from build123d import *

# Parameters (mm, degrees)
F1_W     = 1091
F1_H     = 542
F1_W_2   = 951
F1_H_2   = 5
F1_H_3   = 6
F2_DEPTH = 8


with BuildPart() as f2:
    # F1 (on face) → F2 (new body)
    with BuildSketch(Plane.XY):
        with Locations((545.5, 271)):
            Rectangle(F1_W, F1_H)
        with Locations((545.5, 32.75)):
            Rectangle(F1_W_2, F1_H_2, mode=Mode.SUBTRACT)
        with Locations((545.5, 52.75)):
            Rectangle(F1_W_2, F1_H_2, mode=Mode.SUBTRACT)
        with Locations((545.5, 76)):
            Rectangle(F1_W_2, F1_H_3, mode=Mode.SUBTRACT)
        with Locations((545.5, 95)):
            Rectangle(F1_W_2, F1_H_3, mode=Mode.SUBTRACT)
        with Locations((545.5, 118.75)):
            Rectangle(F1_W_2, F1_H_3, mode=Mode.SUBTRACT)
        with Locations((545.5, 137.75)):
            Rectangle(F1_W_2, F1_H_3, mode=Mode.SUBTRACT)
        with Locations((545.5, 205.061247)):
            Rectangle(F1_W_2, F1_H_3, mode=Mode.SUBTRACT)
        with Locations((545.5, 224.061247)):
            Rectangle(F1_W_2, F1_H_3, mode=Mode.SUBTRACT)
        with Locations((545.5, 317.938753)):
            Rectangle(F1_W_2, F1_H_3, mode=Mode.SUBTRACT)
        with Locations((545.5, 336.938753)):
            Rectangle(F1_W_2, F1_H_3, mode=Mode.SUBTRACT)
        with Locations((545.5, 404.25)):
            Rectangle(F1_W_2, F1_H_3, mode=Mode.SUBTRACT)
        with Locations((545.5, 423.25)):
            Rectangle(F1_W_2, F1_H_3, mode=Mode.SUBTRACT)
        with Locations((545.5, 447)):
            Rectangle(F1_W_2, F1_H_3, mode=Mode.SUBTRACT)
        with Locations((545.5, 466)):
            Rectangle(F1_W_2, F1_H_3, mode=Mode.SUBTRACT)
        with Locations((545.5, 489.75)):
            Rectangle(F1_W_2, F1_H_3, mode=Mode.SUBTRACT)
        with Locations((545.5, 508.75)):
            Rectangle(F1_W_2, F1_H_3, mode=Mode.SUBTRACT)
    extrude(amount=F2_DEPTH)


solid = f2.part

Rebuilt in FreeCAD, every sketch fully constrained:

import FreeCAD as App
import Part
import Sketcher
from FreeCAD import Vector
Q = App.Units.Quantity


def add_polygon(sketch, points):
    """Adds a closed chain of lines whose ends are joined by coincident constraints."""
    first, n = sketch.GeometryCount, len(points)
    for a, b in zip(points, points[1:] + points[:1]):
        sketch.addGeometry(Part.LineSegment(App.Vector(*a, 0), App.Vector(*b, 0)), False)
    for i in range(n):
        sketch.addConstraint(Sketcher.Constraint("Coincident", first + i, 2, first + (i + 1) % n, 1))

doc = App.newDocument("Part")
body = doc.addObject("PartDesign::Body", "Body")

sketch1 = body.newObject("Sketcher::SketchObject", "Sketch")
sketch1.AttachmentSupport = (doc.getObject("XY_Plane"), [""])
sketch1.MapMode = "FlatFace"
add_polygon(sketch1, [(0, 542), (0, 0), (1091, 0), (1091, 542)])
add_polygon(sketch1, [(1021, 30), (70, 30), (70, 35), (1021, 35)])
add_polygon(sketch1, [(1021, 50), (70, 50), (70, 55), (1021, 55)])
add_polygon(sketch1, [(1021, 73), (70, 73), (70, 79), (1021, 79)])
add_polygon(sketch1, [(1021, 92), (70, 92), (70, 98), (1021, 98)])
add_polygon(sketch1, [(1021, 116), (70, 116), (70, 122), (1021, 122)])
add_polygon(sketch1, [(1021, 135), (70, 135), (70, 141), (1021, 141)])
add_polygon(sketch1, [(1021, 202), (70, 202), (70, 208), (1021, 208)])
add_polygon(sketch1, [(1021, 221), (70, 221), (70, 227), (1021, 227)])
add_polygon(sketch1, [(1021, 315), (70, 315), (70, 321), (1021, 321)])
add_polygon(sketch1, [(1021, 334), (70, 334), (70, 340), (1021, 340)])
add_polygon(sketch1, [(1021, 401), (70, 401), (70, 407), (1021, 407)])
add_polygon(sketch1, [(1021, 420), (70, 420), (70, 426), (1021, 426)])
add_polygon(sketch1, [(1021, 444), (70, 444), (70, 450), (1021, 450)])
add_polygon(sketch1, [(1021, 463), (70, 463), (70, 469), (1021, 469)])
add_polygon(sketch1, [(1021, 487), (70, 487), (70, 493), (1021, 493)])
add_polygon(sketch1, [(1021, 506), (70, 506), (70, 512), (1021, 512)])
sketch1.addConstraint(Sketcher.Constraint("Vertical", 0))
sketch1.addConstraint(Sketcher.Constraint("Horizontal", 1))
sketch1.addConstraint(Sketcher.Constraint("Vertical", 2))
sketch1.addConstraint(Sketcher.Constraint("Horizontal", 3))
sketch1.addConstraint(Sketcher.Constraint("Horizontal", 4))
sketch1.addConstraint(Sketcher.Constraint("Vertical", 5))
sketch1.addConstraint(Sketcher.Constraint("Horizontal", 6))
sketch1.addConstraint(Sketcher.Constraint("Vertical", 7))
sketch1.addConstraint(Sketcher.Constraint("Horizontal", 8))
sketch1.addConstraint(Sketcher.Constraint("Vertical", 9))
sketch1.addConstraint(Sketcher.Constraint("Horizontal", 10))
sketch1.addConstraint(Sketcher.Constraint("Vertical", 11))
sketch1.addConstraint(Sketcher.Constraint("Horizontal", 12))
sketch1.addConstraint(Sketcher.Constraint("Vertical", 13))
sketch1.addConstraint(Sketcher.Constraint("Horizontal", 14))
sketch1.addConstraint(Sketcher.Constraint("Vertical", 15))
sketch1.addConstraint(Sketcher.Constraint("Horizontal", 16))
sketch1.addConstraint(Sketcher.Constraint("Vertical", 17))
sketch1.addConstraint(Sketcher.Constraint("Horizontal", 18))
sketch1.addConstraint(Sketcher.Constraint("Vertical", 19))
sketch1.addConstraint(Sketcher.Constraint("Horizontal", 20))
sketch1.addConstraint(Sketcher.Constraint("Vertical", 21))
sketch1.addConstraint(Sketcher.Constraint("Horizontal", 22))
sketch1.addConstraint(Sketcher.Constraint("Vertical", 23))
sketch1.addConstraint(Sketcher.Constraint("Horizontal", 24))
sketch1.addConstraint(Sketcher.Constraint("Vertical", 25))
sketch1.addConstraint(Sketcher.Constraint("Horizontal", 26))
sketch1.addConstraint(Sketcher.Constraint("Vertical", 27))
sketch1.addConstraint(Sketcher.Constraint("Horizontal", 28))
sketch1.addConstraint(Sketcher.Constraint("Vertical", 29))
sketch1.addConstraint(Sketcher.Constraint("Horizontal", 30))
sketch1.addConstraint(Sketcher.Constraint("Vertical", 31))
sketch1.addConstraint(Sketcher.Constraint("Horizontal", 32))
sketch1.addConstraint(Sketcher.Constraint("Vertical", 33))
sketch1.addConstraint(Sketcher.Constraint("Horizontal", 34))
sketch1.addConstraint(Sketcher.Constraint("Vertical", 35))
sketch1.addConstraint(Sketcher.Constraint("Horizontal", 36))
sketch1.addConstraint(Sketcher.Constraint("Vertical", 37))
sketch1.addConstraint(Sketcher.Constraint("Horizontal", 38))
sketch1.addConstraint(Sketcher.Constraint("Vertical", 39))
sketch1.addConstraint(Sketcher.Constraint("Horizontal", 40))
sketch1.addConstraint(Sketcher.Constraint("Vertical", 41))
sketch1.addConstraint(Sketcher.Constraint("Horizontal", 42))
sketch1.addConstraint(Sketcher.Constraint("Vertical", 43))
sketch1.addConstraint(Sketcher.Constraint("Horizontal", 44))
sketch1.addConstraint(Sketcher.Constraint("Vertical", 45))
sketch1.addConstraint(Sketcher.Constraint("Horizontal", 46))
sketch1.addConstraint(Sketcher.Constraint("Vertical", 47))
sketch1.addConstraint(Sketcher.Constraint("Horizontal", 48))
sketch1.addConstraint(Sketcher.Constraint("Vertical", 49))
sketch1.addConstraint(Sketcher.Constraint("Horizontal", 50))
sketch1.addConstraint(Sketcher.Constraint("Vertical", 51))
sketch1.addConstraint(Sketcher.Constraint("Horizontal", 52))
sketch1.addConstraint(Sketcher.Constraint("Vertical", 53))
sketch1.addConstraint(Sketcher.Constraint("Horizontal", 54))
sketch1.addConstraint(Sketcher.Constraint("Vertical", 55))
sketch1.addConstraint(Sketcher.Constraint("Horizontal", 56))
sketch1.addConstraint(Sketcher.Constraint("Vertical", 57))
sketch1.addConstraint(Sketcher.Constraint("Horizontal", 58))
sketch1.addConstraint(Sketcher.Constraint("Vertical", 59))
sketch1.addConstraint(Sketcher.Constraint("Horizontal", 60))
sketch1.addConstraint(Sketcher.Constraint("Vertical", 61))
sketch1.addConstraint(Sketcher.Constraint("Horizontal", 62))
sketch1.addConstraint(Sketcher.Constraint("Vertical", 63))
sketch1.addConstraint(Sketcher.Constraint("Horizontal", 64))
sketch1.addConstraint(Sketcher.Constraint("Vertical", 65))
sketch1.addConstraint(Sketcher.Constraint("Horizontal", 66))
sketch1.addConstraint(Sketcher.Constraint("Vertical", 67))
sketch1.addConstraint(Sketcher.Constraint("Coincident", 0, 2, -1, 1))
sketch1.addConstraint(Sketcher.Constraint("Vertical", 5, 2, 8, 2))
sketch1.addConstraint(Sketcher.Constraint("Vertical", 7, 2, 10, 2))
sketch1.addConstraint(Sketcher.Constraint("Vertical", 9, 2, 12, 2))
sketch1.addConstraint(Sketcher.Constraint("Vertical", 11, 2, 14, 2))
sketch1.addConstraint(Sketcher.Constraint("Vertical", 13, 2, 16, 2))
sketch1.addConstraint(Sketcher.Constraint("Vertical", 15, 2, 18, 2))
sketch1.addConstraint(Sketcher.Constraint("Vertical", 17, 2, 20, 2))
sketch1.addConstraint(Sketcher.Constraint("Vertical", 19, 2, 22, 2))
sketch1.addConstraint(Sketcher.Constraint("Vertical", 21, 2, 24, 2))
sketch1.addConstraint(Sketcher.Constraint("Vertical", 23, 2, 26, 2))
sketch1.addConstraint(Sketcher.Constraint("Vertical", 25, 2, 28, 2))
sketch1.addConstraint(Sketcher.Constraint("Vertical", 27, 2, 30, 2))
sketch1.addConstraint(Sketcher.Constraint("Vertical", 29, 2, 32, 2))
sketch1.addConstraint(Sketcher.Constraint("Vertical", 31, 2, 34, 2))
sketch1.addConstraint(Sketcher.Constraint("Vertical", 33, 2, 36, 2))
sketch1.addConstraint(Sketcher.Constraint("Vertical", 35, 2, 38, 2))
sketch1.addConstraint(Sketcher.Constraint("Vertical", 37, 2, 40, 2))
sketch1.addConstraint(Sketcher.Constraint("Vertical", 39, 2, 42, 2))
sketch1.addConstraint(Sketcher.Constraint("Vertical", 41, 2, 44, 2))
sketch1.addConstraint(Sketcher.Constraint("Vertical", 43, 2, 46, 2))
sketch1.addConstraint(Sketcher.Constraint("Vertical", 45, 2, 48, 2))
sketch1.addConstraint(Sketcher.Constraint("Vertical", 47, 2, 50, 2))
sketch1.addConstraint(Sketcher.Constraint("Vertical", 49, 2, 52, 2))
sketch1.addConstraint(Sketcher.Constraint("Vertical", 51, 2, 54, 2))
sketch1.addConstraint(Sketcher.Constraint("Vertical", 53, 2, 56, 2))
sketch1.addConstraint(Sketcher.Constraint("Vertical", 55, 2, 58, 2))
sketch1.addConstraint(Sketcher.Constraint("Vertical", 57, 2, 60, 2))
sketch1.addConstraint(Sketcher.Constraint("Vertical", 59, 2, 62, 2))
sketch1.addConstraint(Sketcher.Constraint("Vertical", 61, 2, 64, 2))
sketch1.addConstraint(Sketcher.Constraint("Vertical", 63, 2, 66, 2))
sketch1.addConstraint(Sketcher.Constraint("Equal", 7, 9))
sketch1.addConstraint(Sketcher.Constraint("Equal", 15, 17))
sketch1.addConstraint(Sketcher.Constraint("Equal", 19, 21))
sketch1.addConstraint(Sketcher.Constraint("Equal", 23, 25))
sketch1.addConstraint(Sketcher.Constraint("Equal", 27, 29))
sketch1.addConstraint(Sketcher.Constraint("Equal", 31, 33))
sketch1.addConstraint(Sketcher.Constraint("Equal", 35, 37))
sketch1.addConstraint(Sketcher.Constraint("Equal", 39, 41))
sketch1.addConstraint(Sketcher.Constraint("Equal", 43, 45))
sketch1.addConstraint(Sketcher.Constraint("Equal", 47, 49))
sketch1.addConstraint(Sketcher.Constraint("Equal", 51, 53))
sketch1.addConstraint(Sketcher.Constraint("Equal", 55, 57))
sketch1.addConstraint(Sketcher.Constraint("Equal", 59, 61))
sketch1.addConstraint(Sketcher.Constraint("Equal", 63, 65))
sketch1.addConstraint(Sketcher.Constraint("DistanceX", 1, 1, 1, 2, Q("1091 mm")))
sketch1.addConstraint(Sketcher.Constraint("DistanceX", 4, 2, 4, 1, Q("951 mm")))
sketch1.addConstraint(Sketcher.Constraint("DistanceY", 0, 2, 0, 1, Q("542 mm")))
sketch1.addConstraint(Sketcher.Constraint("DistanceY", 5, 1, 5, 2, Q("5 mm")))
sketch1.addConstraint(Sketcher.Constraint("DistanceY", 13, 1, 13, 2, Q("6 mm")))
sketch1.addConstraint(Sketcher.Constraint("DistanceX", -1, 1, 4, 2, Q("70 mm")))
sketch1.addConstraint(Sketcher.Constraint("DistanceY", -1, 1, 12, 2, Q("73 mm")))
sketch1.addConstraint(Sketcher.Constraint("DistanceY", -1, 1, 16, 2, Q("92 mm")))
sketch1.addConstraint(Sketcher.Constraint("DistanceY", -1, 1, 52, 2, Q("444 mm")))
sketch1.addConstraint(Sketcher.Constraint("DistanceY", -1, 1, 56, 2, Q("463 mm")))
sketch1.addConstraint(Sketcher.Constraint("DistanceY", -1, 1, 4, 2, Q("30.25 mm")))
sketch1.addConstraint(Sketcher.Constraint("DistanceY", -1, 1, 8, 2, Q("50.25 mm")))
sketch1.addConstraint(Sketcher.Constraint("DistanceY", -1, 1, 20, 2, Q("115.75 mm")))
sketch1.addConstraint(Sketcher.Constraint("DistanceY", -1, 1, 24, 2, Q("134.75 mm")))
sketch1.addConstraint(Sketcher.Constraint("DistanceY", -1, 1, 44, 2, Q("401.25 mm")))
sketch1.addConstraint(Sketcher.Constraint("DistanceY", -1, 1, 48, 2, Q("420.25 mm")))
sketch1.addConstraint(Sketcher.Constraint("DistanceY", -1, 1, 60, 2, Q("486.75 mm")))
sketch1.addConstraint(Sketcher.Constraint("DistanceY", -1, 1, 64, 2, Q("505.75 mm")))
sketch1.addConstraint(Sketcher.Constraint("DistanceY", -1, 1, 28, 2, Q("202.061247 mm")))
sketch1.addConstraint(Sketcher.Constraint("DistanceY", -1, 1, 32, 2, Q("221.061247 mm")))
sketch1.addConstraint(Sketcher.Constraint("DistanceY", -1, 1, 36, 2, Q("314.938753 mm")))
sketch1.addConstraint(Sketcher.Constraint("DistanceY", -1, 1, 40, 2, Q("333.938753 mm")))
pad1 = body.newObject("PartDesign::Pad", "Pad")
pad1.Profile = sketch1
pad1.Length = 8

doc.recompute()
